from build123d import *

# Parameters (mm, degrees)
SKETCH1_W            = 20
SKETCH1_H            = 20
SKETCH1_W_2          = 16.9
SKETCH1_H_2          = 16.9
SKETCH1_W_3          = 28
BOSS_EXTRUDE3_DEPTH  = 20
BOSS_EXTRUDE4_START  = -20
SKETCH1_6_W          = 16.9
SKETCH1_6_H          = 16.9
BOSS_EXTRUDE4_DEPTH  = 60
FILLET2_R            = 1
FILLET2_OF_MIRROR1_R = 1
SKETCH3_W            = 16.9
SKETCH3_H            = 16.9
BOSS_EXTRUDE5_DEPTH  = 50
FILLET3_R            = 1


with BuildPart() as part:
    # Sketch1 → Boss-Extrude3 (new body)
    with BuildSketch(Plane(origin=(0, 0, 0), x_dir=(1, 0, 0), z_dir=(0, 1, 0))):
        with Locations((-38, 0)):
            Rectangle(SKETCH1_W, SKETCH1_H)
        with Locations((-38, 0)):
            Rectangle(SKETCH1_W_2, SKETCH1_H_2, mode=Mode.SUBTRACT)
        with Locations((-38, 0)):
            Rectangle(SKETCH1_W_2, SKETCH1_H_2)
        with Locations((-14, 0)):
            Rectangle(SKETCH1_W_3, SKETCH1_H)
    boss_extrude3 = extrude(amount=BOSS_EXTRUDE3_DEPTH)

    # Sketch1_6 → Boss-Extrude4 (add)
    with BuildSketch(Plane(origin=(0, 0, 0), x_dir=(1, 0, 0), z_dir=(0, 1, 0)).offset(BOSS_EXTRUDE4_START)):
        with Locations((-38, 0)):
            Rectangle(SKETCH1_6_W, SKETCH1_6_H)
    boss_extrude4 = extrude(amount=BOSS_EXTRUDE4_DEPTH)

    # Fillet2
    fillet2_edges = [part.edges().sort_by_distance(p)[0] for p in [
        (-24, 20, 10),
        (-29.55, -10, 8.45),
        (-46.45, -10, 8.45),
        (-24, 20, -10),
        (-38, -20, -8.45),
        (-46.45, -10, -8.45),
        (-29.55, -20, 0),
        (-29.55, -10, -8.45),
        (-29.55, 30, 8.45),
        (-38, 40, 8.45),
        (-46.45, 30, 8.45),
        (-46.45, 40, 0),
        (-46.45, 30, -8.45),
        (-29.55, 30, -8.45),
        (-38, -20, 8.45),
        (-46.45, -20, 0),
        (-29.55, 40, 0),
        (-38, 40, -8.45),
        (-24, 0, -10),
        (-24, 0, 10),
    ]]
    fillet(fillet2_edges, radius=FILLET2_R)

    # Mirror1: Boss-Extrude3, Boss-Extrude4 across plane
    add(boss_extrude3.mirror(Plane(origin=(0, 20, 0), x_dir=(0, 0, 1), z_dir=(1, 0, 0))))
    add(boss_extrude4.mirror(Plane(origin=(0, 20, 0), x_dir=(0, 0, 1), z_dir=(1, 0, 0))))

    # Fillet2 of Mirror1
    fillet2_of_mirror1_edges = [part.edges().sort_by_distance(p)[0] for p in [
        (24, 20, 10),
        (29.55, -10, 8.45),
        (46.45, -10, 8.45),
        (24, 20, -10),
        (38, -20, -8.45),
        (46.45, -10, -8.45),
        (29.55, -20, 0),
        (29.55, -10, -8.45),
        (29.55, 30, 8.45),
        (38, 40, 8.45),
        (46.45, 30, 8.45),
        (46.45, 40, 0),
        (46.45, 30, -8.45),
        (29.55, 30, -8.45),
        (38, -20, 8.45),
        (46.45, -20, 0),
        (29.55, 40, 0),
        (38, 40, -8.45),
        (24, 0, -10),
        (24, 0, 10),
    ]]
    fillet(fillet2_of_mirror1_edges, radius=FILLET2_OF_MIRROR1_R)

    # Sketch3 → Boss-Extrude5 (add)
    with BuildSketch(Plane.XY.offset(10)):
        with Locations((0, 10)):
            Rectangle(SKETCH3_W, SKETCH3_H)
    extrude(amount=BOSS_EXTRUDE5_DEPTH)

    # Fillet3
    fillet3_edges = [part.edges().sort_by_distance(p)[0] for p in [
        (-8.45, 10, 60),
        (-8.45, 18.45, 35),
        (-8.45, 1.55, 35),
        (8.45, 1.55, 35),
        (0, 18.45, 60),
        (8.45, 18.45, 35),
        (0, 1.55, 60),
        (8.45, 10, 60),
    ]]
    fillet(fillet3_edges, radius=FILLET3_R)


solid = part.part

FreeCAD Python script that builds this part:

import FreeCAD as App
import Part
import Sketcher
from FreeCAD import Vector


def edges_at(feature, points):
    """Names of the edges that pass closest to the given points."""
    edges = feature.Shape.Edges
    near = lambda p: min(range(len(edges)), key=lambda i: edges[i].distToShape(Part.Vertex(*p))[0])
    return sorted({f"Edge{near(p) + 1}" for p in points})

doc = App.newDocument("Part")
params = doc.addObject("Spreadsheet::Sheet", "Params")
for row, (alias, value) in enumerate([
    ("sketch1_width", "48 mm"),
    ("sketch1_height", "20 mm"),
    ("pad1_length", "20 mm"),
    ("sketch2_width", "16.9 mm"),
    ("pad2_length", "60 mm"),
    ("fillet_radius", "1 mm"),
    ("fillet2_radius", "1 mm"),
    ("sketch3_width", "16.9 mm"),
    ("pad3_length", "50 mm"),
    ("fillet3_radius", "1 mm"),
], start=1):
    params.set(f"A{row}", alias)
    params.set(f"B{row}", "=" + value)
    params.setAlias(f"B{row}", alias)

body = doc.addObject("PartDesign::Body", "Body")

# Sketch on XZ plane
sketch1 = body.newObject("Sketcher::SketchObject", "Sketch")
sketch1.AttachmentSupport = (doc.getObject("XZ_Plane"), [""])
sketch1.MapMode = "FlatFace"
sketch1.addGeometry(Part.LineSegment(Vector(-48, -10, 0), Vector(-48, 10, 0)), False)
sketch1.addGeometry(Part.LineSegment(Vector(-48, 10, 0), Vector(0, 10, 0)), False)
sketch1.addGeometry(Part.LineSegment(Vector(0, 10, 0), Vector(0, -10, 0)), False)
sketch1.addGeometry(Part.LineSegment(Vector(0, -10, 0), Vector(-48, -10, 0)), False)
sketch1.addConstraint(Sketcher.Constraint("Coincident", 0, 2, 1, 1))
sketch1.addConstraint(Sketcher.Constraint("Coincident", 1, 2, 2, 1))
sketch1.addConstraint(Sketcher.Constraint("Coincident", 2, 2, 3, 1))
sketch1.addConstraint(Sketcher.Constraint("Coincident", 3, 2, 0, 1))
sketch1.addConstraint(Sketcher.Constraint("Vertical", 0))
sketch1.addConstraint(Sketcher.Constraint("Horizontal", 1))
sketch1.addConstraint(Sketcher.Constraint("Vertical", 2))
sketch1.addConstraint(Sketcher.Constraint("Horizontal", 3))
sketch1.addConstraint(Sketcher.Constraint("Symmetric", 1, 2, 2, 2, -1, 1))
sketch1.addConstraint(Sketcher.Constraint("DistanceX", 1, 1, 1, 2, 48.0))
sketch1.addConstraint(Sketcher.Constraint("DistanceY", 0, 1, 0, 2, 20.0))
sketch1.setExpression("Constraints[9]", "Params.sketch1_width")
sketch1.setExpression("Constraints[10]", "Params.sketch1_height")
pad1 = body.newObject("PartDesign::Pad", "Pad")
pad1.Profile = sketch1
pad1.setExpression("Length", "Params.pad1_length")
pad1.Reversed = True

# Sketch on XZ plane
sketch2 = body.newObject("Sketcher::SketchObject", "Sketch001")
sketch2.AttachmentSupport = (doc.getObject("XZ_Plane"), [""])
sketch2.MapMode = "FlatFace"
sketch2.AttachmentOffset = App.Placement(Vector(0, 0, 20), App.Rotation())
sketch2.addGeometry(Part.LineSegment(Vector(-46, -8, 0), Vector(-46, 8, 0)), False)
sketch2.addGeometry(Part.LineSegment(Vector(-46, 8, 0), Vector(-30, 8, 0)), False)
sketch2.addGeometry(Part.LineSegment(Vector(-30, 8, 0), Vector(-30, -8, 0)), False)
sketch2.addGeometry(Part.LineSegment(Vector(-30, -8, 0), Vector(-46, -8, 0)), False)
sketch2.addConstraint(Sketcher.Constraint("Coincident", 0, 2, 1, 1))
sketch2.addConstraint(Sketcher.Constraint("Coincident", 1, 2, 2, 1))
sketch2.addConstraint(Sketcher.Constraint("Coincident", 2, 2, 3, 1))
sketch2.addConstraint(Sketcher.Constraint("Coincident", 3, 2, 0, 1))
sketch2.addConstraint(Sketcher.Constraint("Vertical", 0))
sketch2.addConstraint(Sketcher.Constraint("Horizontal", 1))
sketch2.addConstraint(Sketcher.Constraint("Vertical", 2))
sketch2.addConstraint(Sketcher.Constraint("Horizontal", 3))
sketch2.addConstraint(Sketcher.Constraint("Equal", 3, 0))
sketch2.addConstraint(Sketcher.Constraint("DistanceX", 1, 1, 1, 2, 16.9))
sketch2.addConstraint(Sketcher.Constraint("DistanceX", 0, 2, -1, 1, 46.45))
sketch2.addConstraint(Sketcher.Constraint("DistanceY", -1, 1, 0, 2, 8.45))
sketch2.setExpression("Constraints[9]", "Params.sketch2_width")
pad2 = body.newObject("PartDesign::Pad", "Pad001")
pad2.Profile = sketch2
pad2.setExpression("Length", "Params.pad2_length")
pad2.Reversed = True
doc.recompute()

fillet = body.newObject("PartDesign::Fillet", "Fillet")
fillet.Base = (pad2, edges_at(pad2, [
    (-24, 20, 10),
    (-29.55, -10, 8.45),
    (-46.45, -10, 8.45),
    (-24, 20, -10),
    (-38, -20, -8.45),
    (-46.45, -10, -8.45),
    (-29.55, -20, 0),
    (-29.55, -10, -8.45),
    (-29.55, 30, 8.45),
    (-38, 40, 8.45),
    (-46.45, 30, 8.45),
    (-46.45, 40, 0),
    (-46.45, 30, -8.45),
    (-29.55, 30, -8.45),
    (-38, -20, 8.45),
    (-46.45, -20, 0),
    (-29.55, 40, 0),
    (-38, 40, -8.45),
    (-24, 0, -10),
    (-24, 0, 10),
]))
fillet.setExpression("Radius", "Params.fillet_radius")
doc.recompute()

mirrored = body.newObject("PartDesign::Mirrored", "Mirrored")
mirrored.Originals = [pad1, pad2]
mirrored.MirrorPlane = (doc.getObject("YZ_Plane"), [""])
body.Tip = mirrored
doc.recompute()

fillet2 = body.newObject("PartDesign::Fillet", "Fillet001")
fillet2.Base = (mirrored, edges_at(mirrored, [
    (24, 20, 10),
    (29.55, -10, 8.45),
    (46.45, -10, 8.45),
    (24, 20, -10),
    (38, -20, -8.45),
    (46.45, -10, -8.45),
    (29.55, -20, 0),
    (29.55, -10, -8.45),
    (29.55, 30, 8.45),
    (38, 40, 8.45),
    (46.45, 30, 8.45),
    (46.45, 40, 0),
    (46.45, 30, -8.45),
    (29.55, 30, -8.45),
    (38, -20, 8.45),
    (46.45, -20, 0),
    (29.55, 40, 0),
    (38, 40, -8.45),
    (24, 0, -10),
    (24, 0, 10),
]))
fillet2.setExpression("Radius", "Params.fillet2_radius")

# Sketch on XY plane
sketch3 = body.newObject("Sketcher::SketchObject", "Sketch002")
sketch3.AttachmentSupport = (doc.getObject("XY_Plane"), [""])
sketch3.MapMode = "FlatFace"
sketch3.AttachmentOffset = App.Placement(Vector(0, 0, 10), App.Rotation())
sketch3.addGeometry(Part.LineSegment(Vector(-8, 18, 0), Vector(-8, 2, 0)), False)
sketch3.addGeometry(Part.LineSegment(Vector(-8, 2, 0), Vector(8, 2, 0)), False)
sketch3.addGeometry(Part.LineSegment(Vector(8, 2, 0), Vector(8, 18, 0)), False)
sketch3.addGeometry(Part.LineSegment(Vector(8, 18, 0), Vector(-8, 18, 0)), False)
sketch3.addConstraint(Sketcher.Constraint("Coincident", 0, 2, 1, 1))
sketch3.addConstraint(Sketcher.Constraint("Coincident", 1, 2, 2, 1))
sketch3.addConstraint(Sketcher.Constraint("Coincident", 2, 2, 3, 1))
sketch3.addConstraint(Sketcher.Constraint("Coincident", 3, 2, 0, 1))
sketch3.addConstraint(Sketcher.Constraint("Vertical", 0))
sketch3.addConstraint(Sketcher.Constraint("Horizontal", 1))
sketch3.addConstraint(Sketcher.Constraint("Vertical", 2))
sketch3.addConstraint(Sketcher.Constraint("Horizontal", 3))
sketch3.addConstraint(Sketcher.Constraint("Equal", 3, 0))
sketch3.addConstraint(Sketcher.Constraint("DistanceX", 1, 1, 1, 2, 16.9))
sketch3.addConstraint(Sketcher.Constraint("DistanceX", 0, 2, -1, 1, 8.45))
sketch3.addConstraint(Sketcher.Constraint("DistanceY", -1, 1, 0, 2, 1.55))
sketch3.setExpression("Constraints[9]", "Params.sketch3_width")
pad3 = body.newObject("PartDesign::Pad", "Pad002")
pad3.Profile = sketch3
pad3.setExpression("Length", "Params.pad3_length")
doc.recompute()

fillet3 = body.newObject("PartDesign::Fillet", "Fillet002")
fillet3.Base = (pad3, edges_at(pad3, [
    (-8.45, 10, 60),
    (-8.45, 18.45, 35),
    (-8.45, 1.55, 35),
    (8.45, 1.55, 35),
    (0, 18.45, 60),
    (8.45, 18.45, 35),
    (0, 1.55, 60),
    (8.45, 10, 60),
]))
fillet3.setExpression("Radius", "Params.fillet3_radius")

doc.recompute()
